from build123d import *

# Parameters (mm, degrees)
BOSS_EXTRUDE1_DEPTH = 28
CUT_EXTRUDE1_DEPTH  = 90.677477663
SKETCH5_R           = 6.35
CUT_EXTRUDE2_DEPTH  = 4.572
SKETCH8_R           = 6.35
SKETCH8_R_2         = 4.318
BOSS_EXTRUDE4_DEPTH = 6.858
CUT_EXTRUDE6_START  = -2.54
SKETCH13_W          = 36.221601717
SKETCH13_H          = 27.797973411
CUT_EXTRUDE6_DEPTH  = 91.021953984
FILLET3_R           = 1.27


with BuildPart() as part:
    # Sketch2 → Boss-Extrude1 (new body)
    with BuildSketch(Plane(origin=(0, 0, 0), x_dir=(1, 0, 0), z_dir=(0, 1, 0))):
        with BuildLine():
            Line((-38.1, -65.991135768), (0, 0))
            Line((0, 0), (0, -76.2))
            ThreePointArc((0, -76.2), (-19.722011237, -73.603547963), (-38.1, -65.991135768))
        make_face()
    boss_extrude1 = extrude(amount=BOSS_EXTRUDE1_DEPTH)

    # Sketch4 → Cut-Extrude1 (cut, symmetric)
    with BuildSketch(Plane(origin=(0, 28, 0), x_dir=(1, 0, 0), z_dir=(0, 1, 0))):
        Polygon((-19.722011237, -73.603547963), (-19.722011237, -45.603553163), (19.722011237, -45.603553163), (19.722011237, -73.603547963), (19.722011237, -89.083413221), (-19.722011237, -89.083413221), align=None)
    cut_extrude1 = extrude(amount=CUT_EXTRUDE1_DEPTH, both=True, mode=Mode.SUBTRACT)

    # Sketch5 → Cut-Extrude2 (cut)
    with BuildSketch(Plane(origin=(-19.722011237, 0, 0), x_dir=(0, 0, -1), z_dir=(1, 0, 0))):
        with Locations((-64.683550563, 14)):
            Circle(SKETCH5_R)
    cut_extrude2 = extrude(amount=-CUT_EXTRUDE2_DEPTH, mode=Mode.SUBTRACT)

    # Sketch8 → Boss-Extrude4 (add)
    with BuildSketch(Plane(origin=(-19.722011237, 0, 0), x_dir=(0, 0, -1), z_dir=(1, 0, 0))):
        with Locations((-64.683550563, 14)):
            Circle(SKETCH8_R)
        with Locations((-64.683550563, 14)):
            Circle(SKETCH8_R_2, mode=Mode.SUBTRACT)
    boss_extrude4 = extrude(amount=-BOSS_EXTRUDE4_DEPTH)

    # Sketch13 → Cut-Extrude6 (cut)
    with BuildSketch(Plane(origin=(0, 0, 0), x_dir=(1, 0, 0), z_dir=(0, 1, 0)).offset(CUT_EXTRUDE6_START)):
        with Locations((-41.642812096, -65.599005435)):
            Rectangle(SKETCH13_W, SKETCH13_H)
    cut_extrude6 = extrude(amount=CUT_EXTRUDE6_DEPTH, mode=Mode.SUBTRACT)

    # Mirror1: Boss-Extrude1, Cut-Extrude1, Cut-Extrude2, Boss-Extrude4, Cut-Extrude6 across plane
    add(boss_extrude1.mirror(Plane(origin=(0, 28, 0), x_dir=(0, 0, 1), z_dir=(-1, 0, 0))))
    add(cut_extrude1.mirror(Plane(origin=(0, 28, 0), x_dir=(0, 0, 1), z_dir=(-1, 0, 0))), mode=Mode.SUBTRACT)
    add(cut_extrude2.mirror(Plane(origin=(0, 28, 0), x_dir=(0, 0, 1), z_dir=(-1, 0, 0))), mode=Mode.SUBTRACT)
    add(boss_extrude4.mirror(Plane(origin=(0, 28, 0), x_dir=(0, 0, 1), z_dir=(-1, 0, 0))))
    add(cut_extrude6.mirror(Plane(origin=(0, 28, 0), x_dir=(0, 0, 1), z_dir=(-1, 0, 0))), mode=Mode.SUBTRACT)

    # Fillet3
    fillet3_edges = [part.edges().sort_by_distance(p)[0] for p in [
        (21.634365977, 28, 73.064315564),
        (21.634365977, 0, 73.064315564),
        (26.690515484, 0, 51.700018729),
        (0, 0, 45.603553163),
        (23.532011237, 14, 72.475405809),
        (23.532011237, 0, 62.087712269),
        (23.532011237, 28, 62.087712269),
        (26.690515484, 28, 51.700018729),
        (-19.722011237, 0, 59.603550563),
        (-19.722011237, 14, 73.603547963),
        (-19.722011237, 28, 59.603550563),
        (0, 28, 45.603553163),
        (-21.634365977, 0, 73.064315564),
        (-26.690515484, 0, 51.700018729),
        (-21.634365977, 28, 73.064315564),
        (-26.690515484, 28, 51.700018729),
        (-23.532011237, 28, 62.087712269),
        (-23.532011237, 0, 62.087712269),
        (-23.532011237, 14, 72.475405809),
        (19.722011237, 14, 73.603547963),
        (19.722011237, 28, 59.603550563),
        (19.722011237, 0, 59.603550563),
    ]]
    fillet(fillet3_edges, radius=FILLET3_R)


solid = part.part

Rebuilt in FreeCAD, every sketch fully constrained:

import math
import FreeCAD as App
import Part
import Sketcher

V = App.Vector
Q = App.Units.Quantity


def edges_at(feature, points):
    """Names of the edges that pass closest to the given points."""
    edges = feature.Shape.Edges
    near = lambda p: min(range(len(edges)), key=lambda i: edges[i].distToShape(Part.Vertex(*p))[0])
    return sorted({f"Edge{near(p) + 1}" for p in points})


def add_polygon(sketch, points):
    """Adds a closed chain of lines whose ends are joined by coincident constraints."""
    first, n = sketch.GeometryCount, len(points)
    for a, b in zip(points, points[1:] + points[:1]):
        sketch.addGeometry(Part.LineSegment(App.Vector(*a, 0), App.Vector(*b, 0)), False)
    for i in range(n):
        sketch.addConstraint(Sketcher.Constraint("Coincident", first + i, 2, first + (i + 1) % n, 1))

doc = App.newDocument("Part")
body = doc.addObject("PartDesign::Body", "Body")

sketch1 = body.newObject("Sketcher::SketchObject", "Sketch")
sketch1.AttachmentSupport = (doc.getObject("XZ_Plane"), [""])
sketch1.MapMode = "FlatFace"
sketch1.addGeometry(Part.LineSegment(V(0, 0, 0), V(-38, 66, 0)), False)
sketch1.addGeometry(Part.ArcOfCircle(Part.Circle(V(0, 0, 0), V(0, 0, 1), 76), math.radians(90), math.radians(120)), False)
sketch1.addGeometry(Part.LineSegment(V(0, 76, 0), V(0, 0, 0)), False)
sketch1.addConstraint(Sketcher.Constraint("Coincident", 0, 2, 1, 2))
sketch1.addConstraint(Sketcher.Constraint("Coincident", 1, 1, 2, 1))
sketch1.addConstraint(Sketcher.Constraint("Coincident", 2, 2, 0, 1))
sketch1.addConstraint(Sketcher.Constraint("Vertical", 2))
sketch1.addConstraint(Sketcher.Constraint("Coincident", 1, 3, -1, 1))
sketch1.addConstraint(Sketcher.Constraint("Coincident", 2, 2, -1, 1))
sketch1.addConstraint(Sketcher.Constraint("Radius", 1, Q("3 in")))
sketch1.addConstraint(Sketcher.Constraint("Angle", 0, Q("120 deg")))
pad1 = body.newObject("PartDesign::Pad", "Pad")
pad1.Profile = sketch1
pad1.Length = 28
pad1.Reversed = True

sketch2 = body.newObject("Sketcher::SketchObject", "Sketch001")
sketch2.AttachmentSupport = (doc.getObject("XZ_Plane"), [""])
sketch2.MapMode = "FlatFace"
sketch2.AttachmentOffset = App.Placement(V(0, 0, -28), App.Rotation())
add_polygon(sketch2, [(-20, 46), (-20, 89), (20, 89), (20, 46)])
sketch2.addConstraint(Sketcher.Constraint("Vertical", 0))
sketch2.addConstraint(Sketcher.Constraint("Horizontal", 1))
sketch2.addConstraint(Sketcher.Constraint("Vertical", 2))
sketch2.addConstraint(Sketcher.Constraint("Horizontal", 3))
sketch2.addConstraint(Sketcher.Constraint("DistanceY", 0, 1, 0, 2, 43.47986))
sketch2.addConstraint(Sketcher.Constraint("DistanceX", 1, 1, 1, 2, 39.444022))
sketch2.addConstraint(Sketcher.Constraint("DistanceX", 0, 2, -1, 1, 19.722011))
sketch2.addConstraint(Sketcher.Constraint("DistanceY", -1, 1, 0, 2, 89.083413))
pocket1 = body.newObject("PartDesign::Pocket", "Pocket")
pocket1.Profile = sketch2
pocket1.Length = 181.354955
pocket1.Midplane = True

sketch3 = body.newObject("Sketcher::SketchObject", "Sketch002")
sketch3.AttachmentSupport = (doc.getObject("YZ_Plane"), [""])
sketch3.MapMode = "FlatFace"
sketch3.AttachmentOffset = App.Placement(V(0, 0, -19.722011), App.Rotation())
sketch3.addGeometry(Part.Circle(V(14, 65, 0), V(0, 0, 1), 6), False)
sketch3.addConstraint(Sketcher.Constraint("Diameter", 0, Q("0.5 in")))
sketch3.addConstraint(Sketcher.Constraint("DistanceX", -1, 1, 0, 3, 14.0))
sketch3.addConstraint(Sketcher.Constraint("DistanceY", -1, 1, 0, 3, 64.683551))
pocket2 = body.newObject("PartDesign::Pocket", "Pocket001")
pocket2.Profile = sketch3
pocket2.Length = Q("0.18 in")

sketch4 = body.newObject("Sketcher::SketchObject", "Sketch003")
sketch4.AttachmentSupport = (doc.getObject("YZ_Plane"), [""])
sketch4.MapMode = "FlatFace"
sketch4.AttachmentOffset = App.Placement(V(0, 0, -19.722011), App.Rotation())
sketch4.addGeometry(Part.Circle(V(14, 64.7, 0), V(0, 0, 1), 6.3), False)
sketch4.addGeometry(Part.Circle(V(14, 64.7, 0), V(0, 0, 1), 4.3), False)
sketch4.addConstraint(Sketcher.Constraint("Coincident", 1, 3, 0, 3))
sketch4.addConstraint(Sketcher.Constraint("Diameter", 0, Q("0.5 in")))
sketch4.addConstraint(Sketcher.Constraint("Diameter", 1, Q("0.34 in")))
sketch4.addConstraint(Sketcher.Constraint("DistanceX", -1, 1, 0, 3, 14.0))
sketch4.addConstraint(Sketcher.Constraint("DistanceY", -1, 1, 0, 3, 64.683551))
pad2 = body.newObject("PartDesign::Pad", "Pad001")
pad2.Profile = sketch4
pad2.Length = Q("0.27 in")
pad2.Reversed = True

sketch5 = body.newObject("Sketcher::SketchObject", "Sketch004")
sketch5.AttachmentSupport = (doc.getObject("XZ_Plane"), [""])
sketch5.MapMode = "FlatFace"
sketch5.AttachmentOffset = App.Placement(V(0, 0, 0.1 * 25.4), App.Rotation())
add_polygon(sketch5, [(-60, 52), (-60, 79), (-24, 79), (-24, 52)])
sketch5.addConstraint(Sketcher.Constraint("Vertical", 0))
sketch5.addConstraint(Sketcher.Constraint("Horizontal", 1))
sketch5.addConstraint(Sketcher.Constraint("Vertical", 2))
sketch5.addConstraint(Sketcher.Constraint("Horizontal", 3))
sketch5.addConstraint(Sketcher.Constraint("DistanceX", 1, 1, 1, 2, 36.221602))
sketch5.addConstraint(Sketcher.Constraint("DistanceY", 0, 1, 0, 2, 27.797973))
sketch5.addConstraint(Sketcher.Constraint("DistanceX", 1, 2, -1, 1, 23.532011))
sketch5.addConstraint(Sketcher.Constraint("DistanceY", -1, 1, 2, 2, 51.700019))
pocket3 = body.newObject("PartDesign::Pocket", "Pocket002")
pocket3.Profile = sketch5
pocket3.Length = 91.021954
doc.recompute()

mirrored = body.newObject("PartDesign::Mirrored", "Mirrored")
mirrored.Originals = [pad1, pocket1, pocket2, pad2, pocket3]
mirrored.MirrorPlane = (doc.getObject("YZ_Plane"), [""])
body.Tip = mirrored
doc.recompute()

fillet = body.newObject("PartDesign::Fillet", "Fillet")
fillet.Base = (mirrored, edges_at(mirrored, [
    (21.634, 28, 73.064),
    (21.634, 0, 73.064),
    (26.691, 0, 51.7),
    (0, 0, 45.604),
    (23.532, 14, 72.475),
    (23.532, 0, 62.088),
    (23.532, 28, 62.088),
    (26.691, 28, 51.7),
    (-19.722, 0, 59.604),
    (-19.722, 14, 73.604),
    (-19.722, 28, 59.604),
    (0, 28, 45.604),
    (-21.634, 0, 73.064),
    (-26.691, 0, 51.7),
    (-21.634, 28, 73.064),
    (-26.691, 28, 51.7),
    (-23.532, 28, 62.088),
    (-23.532, 0, 62.088),
    (-23.532, 14, 72.475),
    (19.722, 14, 73.604),
    (19.722, 28, 59.604),
    (19.722, 0, 59.604),
]))
fillet.Radius = Q("0.05 in")

doc.recompute()
